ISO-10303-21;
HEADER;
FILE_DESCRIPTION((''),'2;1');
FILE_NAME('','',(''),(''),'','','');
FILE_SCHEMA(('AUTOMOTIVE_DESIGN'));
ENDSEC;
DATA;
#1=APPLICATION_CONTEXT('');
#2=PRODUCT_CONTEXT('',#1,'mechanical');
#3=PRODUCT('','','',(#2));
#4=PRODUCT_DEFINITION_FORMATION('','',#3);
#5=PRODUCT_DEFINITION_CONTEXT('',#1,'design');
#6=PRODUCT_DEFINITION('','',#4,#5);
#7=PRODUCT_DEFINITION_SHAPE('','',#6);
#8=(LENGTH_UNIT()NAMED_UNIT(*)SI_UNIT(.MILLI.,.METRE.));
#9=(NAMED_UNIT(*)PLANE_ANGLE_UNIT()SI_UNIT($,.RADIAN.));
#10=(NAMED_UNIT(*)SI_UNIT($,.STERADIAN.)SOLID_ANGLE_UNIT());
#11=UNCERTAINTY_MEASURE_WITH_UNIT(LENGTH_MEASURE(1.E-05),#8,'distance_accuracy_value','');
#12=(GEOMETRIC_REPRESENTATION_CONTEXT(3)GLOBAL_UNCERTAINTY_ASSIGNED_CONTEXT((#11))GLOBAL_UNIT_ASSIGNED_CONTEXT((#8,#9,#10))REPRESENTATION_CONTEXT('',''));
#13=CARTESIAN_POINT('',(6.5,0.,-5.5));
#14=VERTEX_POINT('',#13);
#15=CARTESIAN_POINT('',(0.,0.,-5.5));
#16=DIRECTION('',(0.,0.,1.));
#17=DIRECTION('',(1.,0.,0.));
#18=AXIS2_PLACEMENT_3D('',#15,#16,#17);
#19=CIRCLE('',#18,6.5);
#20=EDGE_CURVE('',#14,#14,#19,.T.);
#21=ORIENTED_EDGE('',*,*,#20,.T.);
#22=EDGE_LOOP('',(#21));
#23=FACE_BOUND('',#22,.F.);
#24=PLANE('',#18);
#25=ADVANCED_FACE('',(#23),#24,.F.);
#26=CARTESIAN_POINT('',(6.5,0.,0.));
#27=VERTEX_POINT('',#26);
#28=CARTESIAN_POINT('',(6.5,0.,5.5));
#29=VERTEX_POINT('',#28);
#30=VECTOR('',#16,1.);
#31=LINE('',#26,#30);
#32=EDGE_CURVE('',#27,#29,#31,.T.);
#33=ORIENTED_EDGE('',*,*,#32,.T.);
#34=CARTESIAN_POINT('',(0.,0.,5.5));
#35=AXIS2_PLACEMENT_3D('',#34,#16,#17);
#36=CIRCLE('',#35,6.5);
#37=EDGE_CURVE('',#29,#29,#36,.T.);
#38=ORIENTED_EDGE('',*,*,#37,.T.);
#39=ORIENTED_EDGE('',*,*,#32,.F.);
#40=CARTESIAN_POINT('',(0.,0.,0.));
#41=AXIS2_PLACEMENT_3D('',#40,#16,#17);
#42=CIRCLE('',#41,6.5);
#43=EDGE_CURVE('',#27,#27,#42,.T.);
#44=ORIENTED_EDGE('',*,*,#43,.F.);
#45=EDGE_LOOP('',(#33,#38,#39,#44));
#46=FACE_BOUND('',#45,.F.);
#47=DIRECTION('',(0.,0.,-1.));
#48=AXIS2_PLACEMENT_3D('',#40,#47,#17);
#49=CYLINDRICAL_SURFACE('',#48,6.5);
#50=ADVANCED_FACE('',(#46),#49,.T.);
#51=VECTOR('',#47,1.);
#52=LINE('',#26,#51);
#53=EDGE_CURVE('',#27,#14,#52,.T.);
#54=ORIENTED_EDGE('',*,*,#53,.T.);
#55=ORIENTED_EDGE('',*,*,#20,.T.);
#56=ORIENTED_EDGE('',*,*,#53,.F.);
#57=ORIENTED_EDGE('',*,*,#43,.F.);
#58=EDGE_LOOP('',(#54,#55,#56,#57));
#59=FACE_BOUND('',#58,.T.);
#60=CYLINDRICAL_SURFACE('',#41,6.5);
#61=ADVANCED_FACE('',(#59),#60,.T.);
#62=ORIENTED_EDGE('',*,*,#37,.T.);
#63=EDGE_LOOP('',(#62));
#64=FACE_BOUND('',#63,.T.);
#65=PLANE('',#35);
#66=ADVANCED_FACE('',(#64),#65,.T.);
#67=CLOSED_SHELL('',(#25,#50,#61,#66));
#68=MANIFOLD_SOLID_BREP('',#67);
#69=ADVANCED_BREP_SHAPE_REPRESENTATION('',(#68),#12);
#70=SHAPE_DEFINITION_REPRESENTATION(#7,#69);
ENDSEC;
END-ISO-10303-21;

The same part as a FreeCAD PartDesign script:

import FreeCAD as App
import Part
import Sketcher
from FreeCAD import Vector
Q = App.Units.Quantity

doc = App.newDocument("Part")
params = doc.addObject("Spreadsheet::Sheet", "Params")
for row, (alias, value) in enumerate([
    ("sketch1_diameter", "13 mm"),
    ("pad1_length", "11 mm"),
], start=1):
    params.set(f"A{row}", alias)
    params.set(f"B{row}", "=" + value)
    params.setAlias(f"B{row}", alias)

body = doc.addObject("PartDesign::Body", "Body")

sketch1 = body.newObject("Sketcher::SketchObject", "Sketch")
sketch1.AttachmentSupport = (doc.getObject("XY_Plane"), [""])
sketch1.MapMode = "FlatFace"
sketch1.addGeometry(Part.Circle(Vector(0, 0, 0), Vector(0, 0, 1), 6), False)
sketch1.addConstraint(Sketcher.Constraint("Coincident", 0, 3, -1, 1))
sketch1.addConstraint(Sketcher.Constraint("Diameter", 0, Q("13 mm")))
sketch1.setExpression("Constraints[1]", "Params.sketch1_diameter")
pad1 = body.newObject("PartDesign::Pad", "Pad")
pad1.Profile = sketch1
pad1.setExpression("Length", "Params.pad1_length")
pad1.Midplane = True

doc.recompute()
